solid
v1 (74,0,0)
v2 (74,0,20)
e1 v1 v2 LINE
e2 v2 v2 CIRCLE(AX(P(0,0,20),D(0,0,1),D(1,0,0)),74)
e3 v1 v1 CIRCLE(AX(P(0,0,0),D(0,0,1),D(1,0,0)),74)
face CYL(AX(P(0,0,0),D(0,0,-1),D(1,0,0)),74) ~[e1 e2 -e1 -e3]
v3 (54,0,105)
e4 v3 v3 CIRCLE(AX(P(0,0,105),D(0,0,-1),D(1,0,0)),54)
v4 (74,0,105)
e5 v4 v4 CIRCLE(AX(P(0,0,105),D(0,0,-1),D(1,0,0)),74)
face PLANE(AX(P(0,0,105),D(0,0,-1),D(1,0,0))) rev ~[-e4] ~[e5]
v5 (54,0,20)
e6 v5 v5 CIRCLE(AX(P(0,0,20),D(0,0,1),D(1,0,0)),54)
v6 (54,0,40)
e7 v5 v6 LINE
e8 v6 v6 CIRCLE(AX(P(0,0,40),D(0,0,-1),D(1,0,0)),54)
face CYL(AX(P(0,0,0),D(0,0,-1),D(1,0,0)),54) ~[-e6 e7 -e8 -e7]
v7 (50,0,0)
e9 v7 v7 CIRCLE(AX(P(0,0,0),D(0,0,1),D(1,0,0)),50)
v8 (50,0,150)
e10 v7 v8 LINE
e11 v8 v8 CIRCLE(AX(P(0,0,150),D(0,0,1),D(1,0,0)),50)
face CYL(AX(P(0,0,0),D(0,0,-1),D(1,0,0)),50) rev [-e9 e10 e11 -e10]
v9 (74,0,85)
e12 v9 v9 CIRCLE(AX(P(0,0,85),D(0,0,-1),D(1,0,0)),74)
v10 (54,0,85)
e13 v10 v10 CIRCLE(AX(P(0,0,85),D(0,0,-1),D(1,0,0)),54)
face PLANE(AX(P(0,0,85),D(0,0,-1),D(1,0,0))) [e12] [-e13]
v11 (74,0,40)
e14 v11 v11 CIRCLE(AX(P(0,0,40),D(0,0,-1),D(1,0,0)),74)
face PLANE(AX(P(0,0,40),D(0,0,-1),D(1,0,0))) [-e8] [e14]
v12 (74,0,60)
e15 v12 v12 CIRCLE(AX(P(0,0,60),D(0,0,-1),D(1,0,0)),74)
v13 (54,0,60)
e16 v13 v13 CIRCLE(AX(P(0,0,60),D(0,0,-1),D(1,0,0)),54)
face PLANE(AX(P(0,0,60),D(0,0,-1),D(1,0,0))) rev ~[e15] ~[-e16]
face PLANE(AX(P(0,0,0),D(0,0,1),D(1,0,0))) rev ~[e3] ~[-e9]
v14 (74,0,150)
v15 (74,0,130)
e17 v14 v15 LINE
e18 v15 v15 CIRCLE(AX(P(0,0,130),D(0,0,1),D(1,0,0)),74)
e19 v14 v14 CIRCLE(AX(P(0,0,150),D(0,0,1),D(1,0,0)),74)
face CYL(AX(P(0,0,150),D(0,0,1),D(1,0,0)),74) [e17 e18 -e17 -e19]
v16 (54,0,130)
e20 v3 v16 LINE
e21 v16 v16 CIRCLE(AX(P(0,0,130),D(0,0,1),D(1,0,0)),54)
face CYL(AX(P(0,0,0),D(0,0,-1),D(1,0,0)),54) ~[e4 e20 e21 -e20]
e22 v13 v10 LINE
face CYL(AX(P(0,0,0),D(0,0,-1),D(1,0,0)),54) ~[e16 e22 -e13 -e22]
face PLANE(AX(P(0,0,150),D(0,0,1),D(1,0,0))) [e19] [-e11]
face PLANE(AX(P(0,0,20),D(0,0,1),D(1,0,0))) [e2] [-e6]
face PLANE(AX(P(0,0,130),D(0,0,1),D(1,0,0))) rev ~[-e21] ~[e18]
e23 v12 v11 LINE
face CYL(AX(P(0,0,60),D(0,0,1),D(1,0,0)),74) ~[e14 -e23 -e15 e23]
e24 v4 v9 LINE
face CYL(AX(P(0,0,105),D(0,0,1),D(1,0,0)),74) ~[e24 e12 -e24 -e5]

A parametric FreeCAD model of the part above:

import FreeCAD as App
import Part
import Sketcher

V = App.Vector
Q = App.Units.Quantity

doc = App.newDocument("Part")
body = doc.addObject("PartDesign::Body", "Body")

# Sketch on XY plane
sketch1 = body.newObject("Sketcher::SketchObject", "Sketch")
sketch1.AttachmentSupport = (doc.getObject("XY_Plane"), [""])
sketch1.MapMode = "FlatFace"
sketch1.addGeometry([
    Part.Circle(V(0, 0, 0), V(0, 0, 1), 54),
    Part.Circle(V(0, 0, 0), V(0, 0, 1), 50),
], False)
sketch1.addConstraint([
    Sketcher.Constraint("Coincident", 0, 3, -1, 1),
    Sketcher.Constraint("Coincident", 1, 3, -1, 1),
    Sketcher.Constraint("Diameter", 0, Q("108 mm")),
    Sketcher.Constraint("Diameter", 1, Q("100 mm")),
])
pad1 = body.newObject("PartDesign::Pad", "Pad")
pad1.Profile = sketch1
pad1.Length = 150

# Sketch on XY plane
sketch2 = body.newObject("Sketcher::SketchObject", "Sketch001")
sketch2.AttachmentSupport = (doc.getObject("XY_Plane"), [""])
sketch2.MapMode = "FlatFace"
sketch2.addGeometry([
    Part.Circle(V(0, 0, 0), V(0, 0, 1), 74),
    Part.Circle(V(0, 0, 0), V(0, 0, 1), 54),
], False)
sketch2.addConstraint([
    Sketcher.Constraint("Coincident", 0, 3, -1, 1),
    Sketcher.Constraint("Coincident", 1, 3, -1, 1),
    Sketcher.Constraint("Diameter", 0, Q("148 mm")),
    Sketcher.Constraint("Diameter", 1, Q("108 mm")),
])
pad2 = body.newObject("PartDesign::Pad", "Pad001")
pad2.Profile = sketch2
pad2.Length = 20

# Sketch on XY plane
sketch3 = body.newObject("Sketcher::SketchObject", "Sketch002")
sketch3.AttachmentSupport = (doc.getObject("XY_Plane"), [""])
sketch3.MapMode = "FlatFace"
sketch3.AttachmentOffset = App.Placement(V(0, 0, 150), App.Rotation())
sketch3.addGeometry([
    Part.Circle(V(0, 0, 0), V(0, 0, 1), 74),
    Part.Circle(V(0, 0, 0), V(0, 0, 1), 54),
], False)
sketch3.addConstraint([
    Sketcher.Constraint("Coincident", 0, 3, -1, 1),
    Sketcher.Constraint("Coincident", 1, 3, -1, 1),
    Sketcher.Constraint("Diameter", 0, Q("148 mm")),
    Sketcher.Constraint("Diameter", 1, Q("108 mm")),
])
pad3 = body.newObject("PartDesign::Pad", "Pad002")
pad3.Profile = sketch3
pad3.Length = 20
pad3.Reversed = True

# Sketch on XY plane
sketch4 = body.newObject("Sketcher::SketchObject", "Sketch003")
sketch4.AttachmentSupport = (doc.getObject("XY_Plane"), [""])
sketch4.MapMode = "FlatFace"
sketch4.AttachmentOffset = App.Placement(V(0, 0, 105), App.Rotation())
sketch4.addGeometry([
    Part.Circle(V(0, 0, 0), V(0, 0, 1), 74),
    Part.Circle(V(0, 0, 0), V(0, 0, 1), 54),
], False)
sketch4.addConstraint([
    Sketcher.Constraint("Coincident", 0, 3, -1, 1),
    Sketcher.Constraint("Coincident", 1, 3, -1, 1),
    Sketcher.Constraint("Diameter", 0, Q("148 mm")),
    Sketcher.Constraint("Diameter", 1, Q("108 mm")),
])
pad4 = body.newObject("PartDesign::Pad", "Pad003")
pad4.Profile = sketch4
pad4.Length = 20
pad4.Reversed = True

# Sketch on XY plane
sketch5 = body.newObject("Sketcher::SketchObject", "Sketch004")
sketch5.AttachmentSupport = (doc.getObject("XY_Plane"), [""])
sketch5.MapMode = "FlatFace"
sketch5.AttachmentOffset = App.Placement(V(0, 0, 60), App.Rotation())
sketch5.addGeometry([
    Part.Circle(V(0, 0, 0), V(0, 0, 1), 74),
    Part.Circle(V(0, 0, 0), V(0, 0, 1), 54),
], False)
sketch5.addConstraint([
    Sketcher.Constraint("Coincident", 0, 3, -1, 1),
    Sketcher.Constraint("Coincident", 1, 3, -1, 1),
    Sketcher.Constraint("Diameter", 0, Q("148 mm")),
    Sketcher.Constraint("Diameter", 1, Q("108 mm")),
])
pad5 = body.newObject("PartDesign::Pad", "Pad004")
pad5.Profile = sketch5
pad5.Length = 20
pad5.Reversed = True

doc.recompute()
